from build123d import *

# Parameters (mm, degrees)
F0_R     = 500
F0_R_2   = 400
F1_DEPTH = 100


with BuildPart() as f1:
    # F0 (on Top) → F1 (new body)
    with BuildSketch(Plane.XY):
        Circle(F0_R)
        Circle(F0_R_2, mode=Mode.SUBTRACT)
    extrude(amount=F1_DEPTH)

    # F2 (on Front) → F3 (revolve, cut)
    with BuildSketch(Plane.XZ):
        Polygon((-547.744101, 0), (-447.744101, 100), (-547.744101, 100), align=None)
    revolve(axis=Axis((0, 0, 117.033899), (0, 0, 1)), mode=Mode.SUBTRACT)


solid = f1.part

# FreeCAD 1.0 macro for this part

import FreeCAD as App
import Part
import Sketcher

V = App.Vector


def add_polygon(sketch, points):
    """Adds a closed chain of lines whose ends are joined by coincident constraints."""
    first, n = sketch.GeometryCount, len(points)
    for a, b in zip(points, points[1:] + points[:1]):
        sketch.addGeometry(Part.LineSegment(App.Vector(*a, 0), App.Vector(*b, 0)), False)
    for i in range(n):
        sketch.addConstraint(Sketcher.Constraint("Coincident", first + i, 2, first + (i + 1) % n, 1))

doc = App.newDocument("Part")
body = doc.addObject("PartDesign::Body", "Body")

sketch1 = doc.addObject("Sketcher::SketchObject", "Sketch")
body.addObject(sketch1)
sketch1.AttachmentSupport = (doc.XY_Plane, [""])
sketch1.MapMode = "FlatFace"
sketch1.addGeometry([
    Part.Circle(V(0, 0, 0), V(0, 0, 1), 500),
    Part.Circle(V(0, 0, 0), V(0, 0, 1), 400),
], False)
sketch1.addConstraint([
    Sketcher.Constraint("Coincident", 0, 3, -1, 1),
    Sketcher.Constraint("Coincident", 1, 3, -1, 1),
    Sketcher.Constraint("Diameter", 0, 1000.0),
    Sketcher.Constraint("Diameter", 1, 800.0),
])
pad1 = doc.addObject("PartDesign::Pad", "Pad")
body.addObject(pad1)
pad1.Profile = sketch1
pad1.Length = 100

sketch2 = doc.addObject("Sketcher::SketchObject", "Sketch001")
body.addObject(sketch2)
sketch2.AttachmentSupport = (doc.XZ_Plane, [""])
sketch2.MapMode = "FlatFace"
add_polygon(sketch2, [(-548, 0), (-448, 100), (-548, 100)])
sketch2.addConstraint([
    Sketcher.Constraint("Horizontal", 1),
    Sketcher.Constraint("Vertical", 2),
    Sketcher.Constraint("PointOnObject", 2, 2, -1),
    Sketcher.Constraint("Equal", 1, 2),
    Sketcher.Constraint("DistanceX", 1, 2, 1, 1, 100.0),
    Sketcher.Constraint("DistanceX", 0, 2, -1, 1, 447.744101),
])
groove = doc.addObject("PartDesign::Groove", "Groove")
body.addObject(groove)
groove.Profile = sketch2
groove.ReferenceAxis = (sketch2, ["V_Axis"])
groove.Angle = 360

doc.recompute()
